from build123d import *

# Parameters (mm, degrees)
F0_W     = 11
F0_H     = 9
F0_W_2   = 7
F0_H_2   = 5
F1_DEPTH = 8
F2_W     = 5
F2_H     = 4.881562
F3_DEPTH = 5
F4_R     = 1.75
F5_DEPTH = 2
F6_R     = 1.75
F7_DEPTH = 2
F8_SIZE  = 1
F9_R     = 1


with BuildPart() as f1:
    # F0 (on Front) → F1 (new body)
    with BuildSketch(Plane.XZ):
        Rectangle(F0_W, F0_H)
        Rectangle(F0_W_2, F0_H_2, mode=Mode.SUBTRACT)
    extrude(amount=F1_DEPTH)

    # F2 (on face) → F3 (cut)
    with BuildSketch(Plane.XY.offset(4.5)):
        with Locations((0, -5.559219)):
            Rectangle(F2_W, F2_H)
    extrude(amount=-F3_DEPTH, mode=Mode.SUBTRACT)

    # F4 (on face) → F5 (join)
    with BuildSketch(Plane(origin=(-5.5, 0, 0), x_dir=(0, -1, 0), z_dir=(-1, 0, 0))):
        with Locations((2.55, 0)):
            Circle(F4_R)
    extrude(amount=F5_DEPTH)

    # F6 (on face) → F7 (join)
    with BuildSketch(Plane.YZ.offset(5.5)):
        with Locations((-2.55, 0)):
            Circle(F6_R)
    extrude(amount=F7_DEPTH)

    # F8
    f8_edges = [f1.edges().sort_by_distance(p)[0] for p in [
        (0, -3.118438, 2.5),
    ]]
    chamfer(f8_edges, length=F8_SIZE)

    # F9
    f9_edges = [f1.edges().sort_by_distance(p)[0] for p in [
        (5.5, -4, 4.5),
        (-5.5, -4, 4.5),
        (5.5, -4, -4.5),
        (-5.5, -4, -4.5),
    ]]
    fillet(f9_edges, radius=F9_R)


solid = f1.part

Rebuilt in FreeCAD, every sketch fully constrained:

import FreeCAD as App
import Part
import Sketcher
from FreeCAD import Vector
Q = App.Units.Quantity


def edges_at(feature, points):
    """Names of the edges that pass closest to the given points."""
    edges = feature.Shape.Edges
    near = lambda p: min(range(len(edges)), key=lambda i: edges[i].distToShape(Part.Vertex(*p))[0])
    return sorted({f"Edge{near(p) + 1}" for p in points})

doc = App.newDocument("Part")
body = doc.addObject("PartDesign::Body", "Body")

sketch1 = body.newObject("Sketcher::SketchObject", "Sketch")
sketch1.AttachmentSupport = (doc.getObject("XZ_Plane"), [""])
sketch1.MapMode = "FlatFace"
sketch1.addGeometry([
    Part.LineSegment(Vector(-5.5, 4.5, 0), Vector(-5.5, -4.5, 0)),
    Part.LineSegment(Vector(-5.5, -4.5, 0), Vector(5.5, -4.5, 0)),
    Part.LineSegment(Vector(5.5, -4.5, 0), Vector(5.5, 4.5, 0)),
    Part.LineSegment(Vector(5.5, 4.5, 0), Vector(-5.5, 4.5, 0)),
    Part.LineSegment(Vector(3.5, -2.5, 0), Vector(-3.5, -2.5, 0)),
    Part.LineSegment(Vector(-3.5, -2.5, 0), Vector(-3.5, 2.5, 0)),
    Part.LineSegment(Vector(-3.5, 2.5, 0), Vector(3.5, 2.5, 0)),
    Part.LineSegment(Vector(3.5, 2.5, 0), Vector(3.5, -2.5, 0)),
], False)
sketch1.addConstraint([
    Sketcher.Constraint("Coincident", 0, 2, 1, 1),
    Sketcher.Constraint("Coincident", 1, 2, 2, 1),
    Sketcher.Constraint("Coincident", 2, 2, 3, 1),
    Sketcher.Constraint("Coincident", 3, 2, 0, 1),
    Sketcher.Constraint("Coincident", 4, 2, 5, 1),
    Sketcher.Constraint("Coincident", 5, 2, 6, 1),
    Sketcher.Constraint("Coincident", 6, 2, 7, 1),
    Sketcher.Constraint("Coincident", 7, 2, 4, 1),
    Sketcher.Constraint("Vertical", 0),
    Sketcher.Constraint("Horizontal", 1),
    Sketcher.Constraint("Vertical", 2),
    Sketcher.Constraint("Horizontal", 3),
    Sketcher.Constraint("Horizontal", 4),
    Sketcher.Constraint("Vertical", 5),
    Sketcher.Constraint("Horizontal", 6),
    Sketcher.Constraint("Vertical", 7),
    Sketcher.Constraint("Symmetric", 0, 2, 2, 2, -1, 1),
    Sketcher.Constraint("Symmetric", 4, 2, 6, 2, -1, 1),
    Sketcher.Constraint("DistanceX", 1, 1, 1, 2, Q("11 mm")),
    Sketcher.Constraint("DistanceX", 4, 2, 4, 1, Q("7 mm")),
    Sketcher.Constraint("DistanceY", 0, 2, 0, 1, Q("9 mm")),
    Sketcher.Constraint("DistanceY", 5, 1, 5, 2, Q("5 mm")),
])
pad1 = body.newObject("PartDesign::Pad", "Pad")
pad1.Profile = sketch1
pad1.Length = 8

sketch2 = body.newObject("Sketcher::SketchObject", "Sketch001")
sketch2.AttachmentSupport = (doc.getObject("XY_Plane"), [""])
sketch2.MapMode = "FlatFace"
sketch2.AttachmentOffset = App.Placement(Vector(0, 0, 4.5), App.Rotation())
sketch2.addGeometry([
    Part.LineSegment(Vector(-2.5, -3.118438, 0), Vector(-2.5, -8, 0)),
    Part.LineSegment(Vector(-2.5, -8, 0), Vector(2.5, -8, 0)),
    Part.LineSegment(Vector(2.5, -8, 0), Vector(2.5, -3.118438, 0)),
    Part.LineSegment(Vector(2.5, -3.118438, 0), Vector(-2.5, -3.118438, 0)),
], False)
sketch2.addConstraint([
    Sketcher.Constraint("Coincident", 0, 2, 1, 1),
    Sketcher.Constraint("Coincident", 1, 2, 2, 1),
    Sketcher.Constraint("Coincident", 2, 2, 3, 1),
    Sketcher.Constraint("Coincident", 3, 2, 0, 1),
    Sketcher.Constraint("Vertical", 0),
    Sketcher.Constraint("Horizontal", 1),
    Sketcher.Constraint("Vertical", 2),
    Sketcher.Constraint("Horizontal", 3),
    Sketcher.Constraint("DistanceX", 1, 1, 1, 2, Q("5 mm")),
    Sketcher.Constraint("DistanceY", 0, 2, -1, 1, Q("8 mm")),
    Sketcher.Constraint("DistanceX", 0, 2, -1, 1, Q("2.5 mm")),
    Sketcher.Constraint("DistanceY", 0, 2, 0, 1, Q("4.881562 mm")),
])
pocket1 = body.newObject("PartDesign::Pocket", "Pocket")
pocket1.Profile = sketch2
pocket1.Length = 5

sketch3 = body.newObject("Sketcher::SketchObject", "Sketch002")
sketch3.AttachmentSupport = (doc.getObject("YZ_Plane"), [""])
sketch3.MapMode = "FlatFace"
sketch3.AttachmentOffset = App.Placement(Vector(0, 0, -5.5), App.Rotation())
sketch3.addGeometry(Part.Circle(Vector(-2.55, 0, 0), Vector(0, 0, 1), 1.75), False)
sketch3.addConstraint([
    Sketcher.Constraint("PointOnObject", 0, 3, -1),
    Sketcher.Constraint("Diameter", 0, Q("3.5 mm")),
    Sketcher.Constraint("DistanceX", 0, 3, -1, 1, Q("2.55 mm")),
])
pad2 = body.newObject("PartDesign::Pad", "Pad001")
pad2.Profile = sketch3
pad2.Length = 2
pad2.Reversed = True

sketch4 = body.newObject("Sketcher::SketchObject", "Sketch003")
sketch4.AttachmentSupport = (doc.getObject("YZ_Plane"), [""])
sketch4.MapMode = "FlatFace"
sketch4.AttachmentOffset = App.Placement(Vector(0, 0, 5.5), App.Rotation())
sketch4.addGeometry(Part.Circle(Vector(-2.55, 0, 0), Vector(0, 0, 1), 1.75), False)
sketch4.addConstraint([
    Sketcher.Constraint("PointOnObject", 0, 3, -1),
    Sketcher.Constraint("Diameter", 0, Q("3.5 mm")),
    Sketcher.Constraint("DistanceX", 0, 3, -1, 1, Q("2.55 mm")),
])
pad3 = body.newObject("PartDesign::Pad", "Pad002")
pad3.Profile = sketch4
pad3.Length = 2
doc.recompute()

chamfer = body.newObject("PartDesign::Chamfer", "Chamfer")
chamfer.Base = (pad3, edges_at(pad3, [(0, -3.118, 2.5)]))
chamfer.Size = 1
doc.recompute()

fillet = body.newObject("PartDesign::Fillet", "Fillet")
fillet.Base = (chamfer, edges_at(chamfer, [
    (5.5, -4, 4.5),
    (-5.5, -4, 4.5),
    (5.5, -4, -4.5),
    (-5.5, -4, -4.5),
]))
fillet.Radius = 1

doc.recompute()
